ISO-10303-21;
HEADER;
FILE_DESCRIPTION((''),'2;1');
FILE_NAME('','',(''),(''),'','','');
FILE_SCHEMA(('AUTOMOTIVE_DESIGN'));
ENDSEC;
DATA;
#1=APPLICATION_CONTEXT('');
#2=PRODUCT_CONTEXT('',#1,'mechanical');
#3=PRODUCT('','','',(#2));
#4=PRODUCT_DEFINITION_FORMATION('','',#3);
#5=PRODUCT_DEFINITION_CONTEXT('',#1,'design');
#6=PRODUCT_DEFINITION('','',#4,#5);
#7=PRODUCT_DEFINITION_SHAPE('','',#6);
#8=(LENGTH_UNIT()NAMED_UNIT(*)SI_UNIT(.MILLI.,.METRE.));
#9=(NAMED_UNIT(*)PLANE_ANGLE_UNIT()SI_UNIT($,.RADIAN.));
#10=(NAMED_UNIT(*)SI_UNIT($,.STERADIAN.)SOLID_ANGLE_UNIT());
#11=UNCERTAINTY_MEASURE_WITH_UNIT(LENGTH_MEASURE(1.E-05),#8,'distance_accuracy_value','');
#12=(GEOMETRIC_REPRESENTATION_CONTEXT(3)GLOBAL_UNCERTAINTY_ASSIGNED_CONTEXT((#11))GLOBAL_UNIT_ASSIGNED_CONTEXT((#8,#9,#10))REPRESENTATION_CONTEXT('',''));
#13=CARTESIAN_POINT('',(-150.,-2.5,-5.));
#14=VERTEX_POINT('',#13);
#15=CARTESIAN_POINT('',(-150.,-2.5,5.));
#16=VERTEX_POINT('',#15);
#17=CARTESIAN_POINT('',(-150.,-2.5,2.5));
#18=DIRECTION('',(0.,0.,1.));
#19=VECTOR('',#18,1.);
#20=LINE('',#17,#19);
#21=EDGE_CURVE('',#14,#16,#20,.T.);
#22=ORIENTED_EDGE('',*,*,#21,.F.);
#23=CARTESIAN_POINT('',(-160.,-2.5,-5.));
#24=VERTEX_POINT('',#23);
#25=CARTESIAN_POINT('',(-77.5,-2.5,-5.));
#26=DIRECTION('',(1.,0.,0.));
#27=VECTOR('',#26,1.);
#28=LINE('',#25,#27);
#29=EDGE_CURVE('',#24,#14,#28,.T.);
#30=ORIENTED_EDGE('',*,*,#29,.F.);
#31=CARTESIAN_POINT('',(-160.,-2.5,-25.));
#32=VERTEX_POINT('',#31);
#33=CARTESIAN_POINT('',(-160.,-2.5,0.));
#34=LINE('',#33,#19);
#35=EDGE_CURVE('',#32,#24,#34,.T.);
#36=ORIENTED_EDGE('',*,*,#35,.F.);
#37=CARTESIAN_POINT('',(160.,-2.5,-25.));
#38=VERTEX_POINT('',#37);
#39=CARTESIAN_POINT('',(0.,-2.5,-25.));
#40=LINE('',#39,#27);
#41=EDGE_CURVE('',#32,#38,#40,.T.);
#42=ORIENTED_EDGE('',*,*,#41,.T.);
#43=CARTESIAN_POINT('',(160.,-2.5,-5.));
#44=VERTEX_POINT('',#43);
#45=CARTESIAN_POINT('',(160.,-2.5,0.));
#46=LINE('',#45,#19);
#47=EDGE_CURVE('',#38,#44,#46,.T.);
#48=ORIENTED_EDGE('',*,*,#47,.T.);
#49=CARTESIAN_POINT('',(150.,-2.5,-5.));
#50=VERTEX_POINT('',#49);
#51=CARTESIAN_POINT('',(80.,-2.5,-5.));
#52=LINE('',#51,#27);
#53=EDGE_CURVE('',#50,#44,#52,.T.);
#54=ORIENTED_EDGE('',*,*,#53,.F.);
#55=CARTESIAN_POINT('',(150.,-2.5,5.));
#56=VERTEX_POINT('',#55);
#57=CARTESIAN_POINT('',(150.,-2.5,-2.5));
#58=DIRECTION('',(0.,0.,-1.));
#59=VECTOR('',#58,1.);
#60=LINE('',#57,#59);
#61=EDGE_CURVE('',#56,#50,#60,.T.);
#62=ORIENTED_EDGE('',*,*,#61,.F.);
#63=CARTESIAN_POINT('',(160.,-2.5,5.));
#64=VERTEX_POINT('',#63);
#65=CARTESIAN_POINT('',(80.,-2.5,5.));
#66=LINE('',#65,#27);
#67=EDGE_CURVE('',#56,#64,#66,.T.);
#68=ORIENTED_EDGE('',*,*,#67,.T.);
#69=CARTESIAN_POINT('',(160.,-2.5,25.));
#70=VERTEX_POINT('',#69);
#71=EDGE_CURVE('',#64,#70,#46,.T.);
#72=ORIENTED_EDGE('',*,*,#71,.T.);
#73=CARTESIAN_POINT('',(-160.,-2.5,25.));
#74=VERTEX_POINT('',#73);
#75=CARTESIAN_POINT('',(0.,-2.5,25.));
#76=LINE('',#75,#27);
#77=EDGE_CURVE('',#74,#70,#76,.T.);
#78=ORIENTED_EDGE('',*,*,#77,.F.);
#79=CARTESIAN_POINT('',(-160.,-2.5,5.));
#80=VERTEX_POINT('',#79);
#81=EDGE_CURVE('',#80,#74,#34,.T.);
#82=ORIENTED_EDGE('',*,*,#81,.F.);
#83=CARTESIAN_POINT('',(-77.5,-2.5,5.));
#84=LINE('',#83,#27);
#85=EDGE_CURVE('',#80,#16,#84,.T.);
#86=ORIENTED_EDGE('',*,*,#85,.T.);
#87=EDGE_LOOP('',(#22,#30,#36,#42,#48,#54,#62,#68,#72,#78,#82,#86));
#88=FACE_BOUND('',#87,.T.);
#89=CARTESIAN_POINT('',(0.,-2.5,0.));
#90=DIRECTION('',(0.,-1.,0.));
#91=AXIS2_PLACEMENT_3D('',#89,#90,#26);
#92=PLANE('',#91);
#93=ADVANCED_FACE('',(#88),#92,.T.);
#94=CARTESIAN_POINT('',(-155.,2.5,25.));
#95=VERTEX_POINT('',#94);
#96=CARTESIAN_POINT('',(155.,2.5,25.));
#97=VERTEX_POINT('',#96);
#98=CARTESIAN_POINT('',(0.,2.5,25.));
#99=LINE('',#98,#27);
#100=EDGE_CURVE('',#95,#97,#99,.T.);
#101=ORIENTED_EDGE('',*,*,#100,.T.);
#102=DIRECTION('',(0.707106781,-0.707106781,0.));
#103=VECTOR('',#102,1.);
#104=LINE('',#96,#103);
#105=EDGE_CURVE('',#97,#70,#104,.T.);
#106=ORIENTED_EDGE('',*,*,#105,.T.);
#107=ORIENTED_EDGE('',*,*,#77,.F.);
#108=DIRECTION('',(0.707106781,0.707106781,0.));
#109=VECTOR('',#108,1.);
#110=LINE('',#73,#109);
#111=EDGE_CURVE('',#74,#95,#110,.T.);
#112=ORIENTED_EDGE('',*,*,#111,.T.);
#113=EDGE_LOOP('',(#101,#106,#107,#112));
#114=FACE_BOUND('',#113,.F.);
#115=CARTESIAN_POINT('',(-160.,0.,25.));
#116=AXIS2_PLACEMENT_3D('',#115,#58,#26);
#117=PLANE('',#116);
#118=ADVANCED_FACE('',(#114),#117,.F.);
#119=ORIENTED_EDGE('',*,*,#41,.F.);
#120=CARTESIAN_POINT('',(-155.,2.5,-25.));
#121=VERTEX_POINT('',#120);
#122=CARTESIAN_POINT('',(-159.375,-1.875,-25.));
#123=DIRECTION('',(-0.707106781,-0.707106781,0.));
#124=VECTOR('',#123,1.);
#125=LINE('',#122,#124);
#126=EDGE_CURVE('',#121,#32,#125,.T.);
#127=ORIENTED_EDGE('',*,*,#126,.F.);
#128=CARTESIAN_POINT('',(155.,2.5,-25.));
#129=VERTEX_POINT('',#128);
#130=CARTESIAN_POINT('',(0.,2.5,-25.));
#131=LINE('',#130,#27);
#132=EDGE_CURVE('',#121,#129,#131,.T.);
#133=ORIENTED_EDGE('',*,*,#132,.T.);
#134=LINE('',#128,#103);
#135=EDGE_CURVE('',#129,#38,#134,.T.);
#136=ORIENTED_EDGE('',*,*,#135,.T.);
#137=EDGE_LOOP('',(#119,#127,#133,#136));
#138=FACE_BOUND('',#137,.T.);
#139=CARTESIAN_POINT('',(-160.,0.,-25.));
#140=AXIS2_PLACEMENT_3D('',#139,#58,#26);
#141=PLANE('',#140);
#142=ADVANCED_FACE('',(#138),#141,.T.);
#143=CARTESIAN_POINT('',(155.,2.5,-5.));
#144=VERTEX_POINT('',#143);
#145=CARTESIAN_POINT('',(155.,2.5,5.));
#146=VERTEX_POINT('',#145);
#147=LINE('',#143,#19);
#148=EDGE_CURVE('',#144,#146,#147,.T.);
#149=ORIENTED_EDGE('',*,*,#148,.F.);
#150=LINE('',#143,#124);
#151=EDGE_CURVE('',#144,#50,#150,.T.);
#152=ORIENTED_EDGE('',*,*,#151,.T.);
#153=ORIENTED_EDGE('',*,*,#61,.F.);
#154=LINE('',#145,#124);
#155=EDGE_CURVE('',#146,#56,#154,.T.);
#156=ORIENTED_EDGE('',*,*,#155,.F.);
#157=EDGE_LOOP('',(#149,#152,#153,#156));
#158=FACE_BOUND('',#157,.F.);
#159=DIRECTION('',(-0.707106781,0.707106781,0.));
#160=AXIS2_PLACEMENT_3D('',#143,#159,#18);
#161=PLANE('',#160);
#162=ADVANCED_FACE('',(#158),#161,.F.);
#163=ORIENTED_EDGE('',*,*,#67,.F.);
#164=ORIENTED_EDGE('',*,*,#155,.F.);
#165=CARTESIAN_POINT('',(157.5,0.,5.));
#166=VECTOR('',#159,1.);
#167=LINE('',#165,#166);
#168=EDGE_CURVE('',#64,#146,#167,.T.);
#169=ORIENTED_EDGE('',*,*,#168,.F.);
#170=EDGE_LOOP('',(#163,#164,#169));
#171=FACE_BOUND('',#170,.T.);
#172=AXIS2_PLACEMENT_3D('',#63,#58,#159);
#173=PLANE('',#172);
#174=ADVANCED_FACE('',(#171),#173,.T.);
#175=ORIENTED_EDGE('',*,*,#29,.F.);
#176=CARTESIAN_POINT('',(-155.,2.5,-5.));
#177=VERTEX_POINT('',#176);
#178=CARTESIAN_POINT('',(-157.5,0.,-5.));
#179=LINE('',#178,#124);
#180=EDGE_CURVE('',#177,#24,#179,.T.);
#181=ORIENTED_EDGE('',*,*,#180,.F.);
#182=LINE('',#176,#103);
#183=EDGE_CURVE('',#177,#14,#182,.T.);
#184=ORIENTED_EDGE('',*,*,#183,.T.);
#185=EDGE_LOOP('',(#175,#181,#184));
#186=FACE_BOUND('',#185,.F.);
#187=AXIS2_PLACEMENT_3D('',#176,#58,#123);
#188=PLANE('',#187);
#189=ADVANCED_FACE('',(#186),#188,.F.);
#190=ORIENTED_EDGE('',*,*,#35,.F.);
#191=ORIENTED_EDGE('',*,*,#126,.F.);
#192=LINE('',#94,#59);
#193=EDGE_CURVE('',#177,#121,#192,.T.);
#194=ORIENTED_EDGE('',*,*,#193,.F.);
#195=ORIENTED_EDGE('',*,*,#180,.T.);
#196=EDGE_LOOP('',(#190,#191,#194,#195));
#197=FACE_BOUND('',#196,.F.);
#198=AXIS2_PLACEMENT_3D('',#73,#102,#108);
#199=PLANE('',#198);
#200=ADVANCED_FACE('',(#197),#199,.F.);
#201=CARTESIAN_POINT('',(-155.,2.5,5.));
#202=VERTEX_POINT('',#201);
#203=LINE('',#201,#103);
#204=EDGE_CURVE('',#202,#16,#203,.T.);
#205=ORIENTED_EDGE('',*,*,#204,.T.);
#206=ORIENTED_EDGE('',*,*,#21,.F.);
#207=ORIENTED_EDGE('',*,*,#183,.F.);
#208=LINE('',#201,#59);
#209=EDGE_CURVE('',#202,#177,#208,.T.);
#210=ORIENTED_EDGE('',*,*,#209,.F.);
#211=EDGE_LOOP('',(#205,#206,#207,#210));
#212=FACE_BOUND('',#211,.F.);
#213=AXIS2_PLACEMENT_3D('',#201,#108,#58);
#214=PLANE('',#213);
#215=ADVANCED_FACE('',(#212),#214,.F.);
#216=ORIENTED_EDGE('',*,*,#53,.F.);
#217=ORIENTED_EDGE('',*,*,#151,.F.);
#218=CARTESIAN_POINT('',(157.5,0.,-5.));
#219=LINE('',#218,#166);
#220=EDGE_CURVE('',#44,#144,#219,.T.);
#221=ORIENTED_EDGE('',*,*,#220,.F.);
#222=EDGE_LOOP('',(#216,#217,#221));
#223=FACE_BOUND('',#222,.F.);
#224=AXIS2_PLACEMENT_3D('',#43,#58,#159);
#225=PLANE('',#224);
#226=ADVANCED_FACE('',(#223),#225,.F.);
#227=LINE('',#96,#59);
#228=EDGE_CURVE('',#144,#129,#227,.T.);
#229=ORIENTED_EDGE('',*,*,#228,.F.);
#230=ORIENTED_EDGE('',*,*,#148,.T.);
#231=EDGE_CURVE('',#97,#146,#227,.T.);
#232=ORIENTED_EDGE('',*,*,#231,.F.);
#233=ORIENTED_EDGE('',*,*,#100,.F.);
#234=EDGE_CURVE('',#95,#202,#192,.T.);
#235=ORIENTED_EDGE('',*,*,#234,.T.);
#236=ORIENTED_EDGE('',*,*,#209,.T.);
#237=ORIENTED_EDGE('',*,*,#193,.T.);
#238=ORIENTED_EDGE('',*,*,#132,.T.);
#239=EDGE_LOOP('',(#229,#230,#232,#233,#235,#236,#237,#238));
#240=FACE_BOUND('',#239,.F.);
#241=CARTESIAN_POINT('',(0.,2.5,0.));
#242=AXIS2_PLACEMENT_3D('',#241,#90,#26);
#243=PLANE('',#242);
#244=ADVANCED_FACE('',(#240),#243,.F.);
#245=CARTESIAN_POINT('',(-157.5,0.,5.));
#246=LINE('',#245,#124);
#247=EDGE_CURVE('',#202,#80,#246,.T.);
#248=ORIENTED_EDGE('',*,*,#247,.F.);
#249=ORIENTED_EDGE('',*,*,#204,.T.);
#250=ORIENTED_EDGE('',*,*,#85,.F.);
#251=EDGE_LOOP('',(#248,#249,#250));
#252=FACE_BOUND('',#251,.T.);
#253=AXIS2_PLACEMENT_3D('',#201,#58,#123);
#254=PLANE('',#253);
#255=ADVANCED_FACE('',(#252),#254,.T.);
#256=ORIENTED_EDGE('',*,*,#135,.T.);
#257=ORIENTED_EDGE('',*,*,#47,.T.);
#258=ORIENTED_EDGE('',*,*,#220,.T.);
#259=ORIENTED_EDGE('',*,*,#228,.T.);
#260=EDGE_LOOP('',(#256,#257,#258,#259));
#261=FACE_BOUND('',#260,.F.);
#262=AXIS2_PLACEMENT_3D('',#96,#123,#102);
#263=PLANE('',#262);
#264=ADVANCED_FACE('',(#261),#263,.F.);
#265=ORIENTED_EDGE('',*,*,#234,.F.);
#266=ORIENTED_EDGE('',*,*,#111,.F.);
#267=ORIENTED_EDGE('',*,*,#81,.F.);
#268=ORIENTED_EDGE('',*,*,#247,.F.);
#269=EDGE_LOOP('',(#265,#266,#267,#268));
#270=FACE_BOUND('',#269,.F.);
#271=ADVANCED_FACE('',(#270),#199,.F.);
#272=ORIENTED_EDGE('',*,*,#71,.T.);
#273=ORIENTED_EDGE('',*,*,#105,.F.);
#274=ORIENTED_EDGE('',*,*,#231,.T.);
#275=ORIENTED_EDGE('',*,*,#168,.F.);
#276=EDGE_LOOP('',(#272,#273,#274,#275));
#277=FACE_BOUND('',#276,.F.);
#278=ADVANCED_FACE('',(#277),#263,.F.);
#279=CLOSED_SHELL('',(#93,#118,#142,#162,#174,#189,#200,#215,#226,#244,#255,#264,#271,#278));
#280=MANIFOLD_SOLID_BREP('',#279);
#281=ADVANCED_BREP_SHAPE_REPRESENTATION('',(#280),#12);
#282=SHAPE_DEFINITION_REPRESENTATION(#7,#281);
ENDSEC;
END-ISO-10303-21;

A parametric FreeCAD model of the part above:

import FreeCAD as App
import Part
import Sketcher
Q = App.Units.Quantity


def add_polygon(sketch, points):
    """Adds a closed chain of lines whose ends are joined by coincident constraints."""
    first, n = sketch.GeometryCount, len(points)
    for a, b in zip(points, points[1:] + points[:1]):
        sketch.addGeometry(Part.LineSegment(App.Vector(*a, 0), App.Vector(*b, 0)), False)
    for i in range(n):
        sketch.addConstraint(Sketcher.Constraint("Coincident", first + i, 2, first + (i + 1) % n, 1))

doc = App.newDocument("Part")
body = doc.addObject("PartDesign::Body", "Body")

# Sketch on XZ plane
sketch1 = body.newObject("Sketcher::SketchObject", "Sketch")
sketch1.AttachmentSupport = (doc.getObject("XZ_Plane"), [""])
sketch1.MapMode = "FlatFace"
add_polygon(sketch1, [(-160, 25), (-160, -25), (160, -25), (160, 25)])  # lines 0-3
sketch1.addConstraint([
    Sketcher.Constraint("Vertical", 0),
    Sketcher.Constraint("Horizontal", 1),
    Sketcher.Constraint("Vertical", 2),
    Sketcher.Constraint("Horizontal", 3),
    Sketcher.Constraint("Symmetric", 0, 2, 2, 2, -1, 1),
    Sketcher.Constraint("DistanceX", 1, 1, 1, 2, Q("320 mm")),
    Sketcher.Constraint("DistanceY", 0, 2, 0, 1, Q("50 mm")),
])
pad1 = body.newObject("PartDesign::Pad", "Pad")
pad1.Profile = sketch1
pad1.Length = 5
pad1.Midplane = True

# Sketch on XY plane
sketch2 = body.newObject("Sketcher::SketchObject", "Sketch001")
sketch2.AttachmentSupport = (doc.getObject("XY_Plane"), [""])
sketch2.MapMode = "FlatFace"
sketch2.AttachmentOffset = App.Placement(App.Vector(0, 0, 25), App.Rotation())
add_polygon(sketch2, [(155, 2), (160, -2), (160, 2)])  # lines 0-2
sketch2.addConstraint([
    Sketcher.Constraint("Vertical", 1),
    Sketcher.Constraint("Horizontal", 2),
    Sketcher.Constraint("Equal", 2, 1),
    Sketcher.Constraint("DistanceX", 2, 2, 2, 1, Q("5 mm")),
    Sketcher.Constraint("DistanceX", -1, 1, 0, 2, Q("160 mm")),
    Sketcher.Constraint("DistanceY", 0, 2, -1, 1, Q("2.5 mm")),
])
pocket1 = body.newObject("PartDesign::Pocket", "Pocket")
pocket1.Profile = sketch2
pocket1.Length = 50

# Sketch on XY plane
sketch3 = body.newObject("Sketcher::SketchObject", "Sketch002")
sketch3.AttachmentSupport = (doc.getObject("XY_Plane"), [""])
sketch3.MapMode = "FlatFace"
sketch3.AttachmentOffset = App.Placement(App.Vector(0, 0, 25), App.Rotation())
add_polygon(sketch3, [(-155, 2), (-160, 2), (-160, -2)])  # lines 0-2
sketch3.addConstraint([
    Sketcher.Constraint("Horizontal", 0),
    Sketcher.Constraint("Vertical", 1),
    Sketcher.Constraint("Equal", 0, 1),
    Sketcher.Constraint("DistanceX", 0, 2, 0, 1, Q("5 mm")),
    Sketcher.Constraint("DistanceX", 0, 2, -1, 1, Q("160 mm")),
    Sketcher.Constraint("DistanceY", -1, 1, 0, 2, Q("2.5 mm")),
])
pocket2 = body.newObject("PartDesign::Pocket", "Pocket001")
pocket2.Profile = sketch3
pocket2.Length = 60

# Sketch on an angled plane
sketch4 = body.newObject("Sketcher::SketchObject", "Sketch003")
sketch4.Placement = App.Placement(App.Vector(78.75, 78.75, 0), App.Rotation(App.Vector(-0.707106781, 0.707106781, 0), App.Vector(0, 0, 0.999999999), App.Vector(0.707106781, 0.707106781, 0), "ZXY"))
add_polygon(sketch4, [(-115, -5), (-108, -5), (-108, 5), (-115, 5)])  # lines 0-3
sketch4.addConstraint([
    Sketcher.Constraint("Horizontal", 0),
    Sketcher.Constraint("Vertical", 1),
    Sketcher.Constraint("Horizontal", 2),
    Sketcher.Constraint("Vertical", 3),
    Sketcher.Constraint("DistanceY", 1, 1, 1, 2, Q("10 mm")),
    Sketcher.Constraint("DistanceY", 0, 2, -1, 1, Q("5 mm")),
    Sketcher.Constraint("DistanceX", 0, 1, 0, 2, Q("7.071068 mm")),
    Sketcher.Constraint("DistanceX", 2, 2, -1, 1, Q("114.904852 mm")),
])
pocket3 = body.newObject("PartDesign::Pocket", "Pocket002")
pocket3.Profile = sketch4
pocket3.Length = 25

# Sketch on an angled plane
sketch5 = body.newObject("Sketcher::SketchObject", "Sketch004")
sketch5.Placement = App.Placement(App.Vector(-78.75, 78.75, 0), App.Rotation(App.Vector(-0.707106781, -0.707106781, 0), App.Vector(0, 0, 0.999999999), App.Vector(-0.707106781, 0.707106781, 0), "ZXY"))
add_polygon(sketch5, [(108, -5), (115, -5), (115, 5), (108, 5)])  # lines 0-3
sketch5.addConstraint([
    Sketcher.Constraint("Horizontal", 0),
    Sketcher.Constraint("Vertical", 1),
    Sketcher.Constraint("Horizontal", 2),
    Sketcher.Constraint("Vertical", 3),
    Sketcher.Constraint("DistanceY", 1, 1, 1, 2, Q("10 mm")),
    Sketcher.Constraint("DistanceY", 0, 2, -1, 1, Q("5 mm")),
    Sketcher.Constraint("DistanceX", 0, 1, 0, 2, Q("7.071068 mm")),
    Sketcher.Constraint("DistanceX", -1, 1, 0, 2, Q("114.904852 mm")),
])
pocket4 = body.newObject("PartDesign::Pocket", "Pocket003")
pocket4.Profile = sketch5
pocket4.Length = 25

doc.recompute()
